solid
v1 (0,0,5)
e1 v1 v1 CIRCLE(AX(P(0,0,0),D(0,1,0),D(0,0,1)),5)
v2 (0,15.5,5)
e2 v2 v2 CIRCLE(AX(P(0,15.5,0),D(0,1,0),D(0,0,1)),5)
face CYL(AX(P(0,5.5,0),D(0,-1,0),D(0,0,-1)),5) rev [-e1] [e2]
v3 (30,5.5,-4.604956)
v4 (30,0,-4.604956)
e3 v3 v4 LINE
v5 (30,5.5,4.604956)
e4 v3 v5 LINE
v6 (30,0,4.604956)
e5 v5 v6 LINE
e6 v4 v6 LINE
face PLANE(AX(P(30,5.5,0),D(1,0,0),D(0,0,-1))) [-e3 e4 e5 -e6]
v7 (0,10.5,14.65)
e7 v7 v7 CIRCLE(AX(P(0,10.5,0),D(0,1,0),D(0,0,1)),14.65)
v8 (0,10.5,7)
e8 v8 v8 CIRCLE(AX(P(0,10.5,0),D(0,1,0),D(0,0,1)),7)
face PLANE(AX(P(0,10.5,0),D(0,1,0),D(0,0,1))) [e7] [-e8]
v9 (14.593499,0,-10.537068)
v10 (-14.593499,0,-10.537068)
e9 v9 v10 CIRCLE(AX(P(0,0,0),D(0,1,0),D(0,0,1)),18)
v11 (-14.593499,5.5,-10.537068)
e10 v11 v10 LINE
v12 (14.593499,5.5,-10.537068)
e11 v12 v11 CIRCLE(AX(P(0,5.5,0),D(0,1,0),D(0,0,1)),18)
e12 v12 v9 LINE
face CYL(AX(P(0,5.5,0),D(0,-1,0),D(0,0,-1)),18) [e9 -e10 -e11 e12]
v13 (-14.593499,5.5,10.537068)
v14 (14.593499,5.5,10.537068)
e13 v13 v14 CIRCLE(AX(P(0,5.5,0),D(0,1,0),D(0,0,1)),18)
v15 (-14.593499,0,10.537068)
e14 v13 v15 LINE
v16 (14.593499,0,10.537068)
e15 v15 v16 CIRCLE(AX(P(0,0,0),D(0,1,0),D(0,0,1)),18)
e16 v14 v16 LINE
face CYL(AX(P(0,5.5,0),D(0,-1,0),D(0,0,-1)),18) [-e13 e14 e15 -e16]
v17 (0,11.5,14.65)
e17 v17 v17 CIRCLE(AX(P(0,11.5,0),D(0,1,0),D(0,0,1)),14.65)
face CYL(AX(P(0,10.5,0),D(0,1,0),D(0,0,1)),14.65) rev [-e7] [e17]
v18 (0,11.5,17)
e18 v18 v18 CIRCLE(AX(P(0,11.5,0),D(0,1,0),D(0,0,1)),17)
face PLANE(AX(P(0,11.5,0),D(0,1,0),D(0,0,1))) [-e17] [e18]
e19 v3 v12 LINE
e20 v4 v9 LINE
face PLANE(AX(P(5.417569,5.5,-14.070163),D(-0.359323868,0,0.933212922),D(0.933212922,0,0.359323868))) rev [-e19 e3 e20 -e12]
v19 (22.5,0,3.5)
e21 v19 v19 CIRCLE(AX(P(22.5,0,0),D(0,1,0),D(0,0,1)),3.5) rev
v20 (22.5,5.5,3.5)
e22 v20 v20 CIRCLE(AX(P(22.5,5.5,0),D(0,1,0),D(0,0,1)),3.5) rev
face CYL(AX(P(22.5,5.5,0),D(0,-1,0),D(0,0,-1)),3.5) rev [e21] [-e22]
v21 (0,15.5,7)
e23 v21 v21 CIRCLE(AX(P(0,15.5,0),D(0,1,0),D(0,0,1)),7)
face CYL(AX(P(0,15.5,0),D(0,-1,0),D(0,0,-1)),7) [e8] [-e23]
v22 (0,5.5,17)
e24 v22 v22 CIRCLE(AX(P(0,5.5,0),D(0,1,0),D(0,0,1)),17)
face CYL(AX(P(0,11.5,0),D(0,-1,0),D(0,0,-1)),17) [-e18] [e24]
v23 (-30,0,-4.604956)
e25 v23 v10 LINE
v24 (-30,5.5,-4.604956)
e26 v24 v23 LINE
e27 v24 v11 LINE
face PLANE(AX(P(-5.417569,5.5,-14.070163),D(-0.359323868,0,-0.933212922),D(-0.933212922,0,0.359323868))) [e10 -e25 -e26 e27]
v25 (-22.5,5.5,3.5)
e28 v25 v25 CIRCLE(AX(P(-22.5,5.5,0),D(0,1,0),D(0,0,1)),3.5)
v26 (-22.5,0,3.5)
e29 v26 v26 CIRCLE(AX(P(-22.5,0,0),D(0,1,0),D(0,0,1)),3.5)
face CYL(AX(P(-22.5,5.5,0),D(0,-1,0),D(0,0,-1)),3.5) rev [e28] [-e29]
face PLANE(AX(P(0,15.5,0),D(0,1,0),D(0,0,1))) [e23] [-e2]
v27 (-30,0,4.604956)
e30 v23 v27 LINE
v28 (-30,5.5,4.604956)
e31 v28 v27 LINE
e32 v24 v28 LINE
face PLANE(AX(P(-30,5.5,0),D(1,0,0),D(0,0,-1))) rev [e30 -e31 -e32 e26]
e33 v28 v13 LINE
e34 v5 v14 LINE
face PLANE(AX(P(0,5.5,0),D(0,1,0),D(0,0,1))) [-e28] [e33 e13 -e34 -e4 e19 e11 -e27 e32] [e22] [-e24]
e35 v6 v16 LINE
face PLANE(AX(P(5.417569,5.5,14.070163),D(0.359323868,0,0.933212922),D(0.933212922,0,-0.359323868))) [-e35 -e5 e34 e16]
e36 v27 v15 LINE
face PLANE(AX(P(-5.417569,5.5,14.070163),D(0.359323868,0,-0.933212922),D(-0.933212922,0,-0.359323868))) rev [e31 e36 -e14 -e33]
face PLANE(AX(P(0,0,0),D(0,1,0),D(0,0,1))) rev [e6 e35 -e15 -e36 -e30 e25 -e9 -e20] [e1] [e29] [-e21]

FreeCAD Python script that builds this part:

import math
import FreeCAD as App
import Part
import Sketcher
from FreeCAD import Vector

doc = App.newDocument("Part")
body = doc.addObject("PartDesign::Body", "Body")

sketch1 = body.newObject("Sketcher::SketchObject", "Sketch")
sketch1.AttachmentSupport = (doc.getObject("XZ_Plane"), [""])
sketch1.MapMode = "FlatFace"
sketch1.addGeometry([
    Part.LineSegment(Vector(-14.6, -10.5, 0), Vector(-30, -4.6, 0)),
    Part.LineSegment(Vector(-30, -4.6, 0), Vector(-30, 4.6, 0)),
    Part.LineSegment(Vector(-30, 4.6, 0), Vector(-14.6, 10.5, 0)),
    Part.ArcOfCircle(Part.Circle(Vector(0, 0, 0), Vector(0, 0, 1), 18), math.radians(36), math.radians(144)),
    Part.LineSegment(Vector(14.6, 10.5, 0), Vector(30, 4.6, 0)),
    Part.LineSegment(Vector(30, 4.6, 0), Vector(30, -4.6, 0)),
    Part.LineSegment(Vector(30, -4.6, 0), Vector(14.6, -10.5, 0)),
    Part.ArcOfCircle(Part.Circle(Vector(0, 0, 0), Vector(0, 0, 1), 18), math.radians(-144), math.radians(-36)),
    Part.Circle(Vector(-22.5, 0, 0), Vector(0, 0, 1), 3.5),
    Part.Circle(Vector(0, 0, 0), Vector(0, 0, 1), 5),
    Part.Circle(Vector(22.5, 0, 0), Vector(0, 0, 1), 3.5),
], False)
sketch1.addConstraint([
    Sketcher.Constraint("Coincident", 0, 2, 1, 1),
    Sketcher.Constraint("Coincident", 1, 2, 2, 1),
    Sketcher.Constraint("Coincident", 2, 2, 3, 2),
    Sketcher.Constraint("Coincident", 3, 1, 4, 1),
    Sketcher.Constraint("Coincident", 4, 2, 5, 1),
    Sketcher.Constraint("Coincident", 5, 2, 6, 1),
    Sketcher.Constraint("Coincident", 6, 2, 7, 2),
    Sketcher.Constraint("Coincident", 7, 1, 0, 1),
    Sketcher.Constraint("Vertical", 1),
    Sketcher.Constraint("Vertical", 5),
    Sketcher.Constraint("Coincident", 3, 3, -1, 1),
    Sketcher.Constraint("Coincident", 7, 3, -1, 1),
    Sketcher.Constraint("Coincident", 9, 3, -1, 1),
    Sketcher.Constraint("Equal", 3, 7),
    Sketcher.Constraint("Equal", 8, 10),
    Sketcher.Constraint("Symmetric", 8, 3, 10, 3, -1, 1),
    Sketcher.Constraint("Symmetric", 0, 2, 4, 2, -1, 1),
    Sketcher.Constraint("PointOnObject", 8, 3, -1),
    Sketcher.Constraint("Parallel", 0, 4),
    Sketcher.Constraint("Parallel", 2, 6),
    Sketcher.Constraint("Horizontal", 2, 2, 3, 1),
    Sketcher.Constraint("Horizontal", 1, 2, 4, 2),
    Sketcher.Constraint("Horizontal", 0, 2, 5, 2),
    Sketcher.Constraint("Diameter", 8, 7.0),
    Sketcher.Constraint("Diameter", 9, 10.0),
    Sketcher.Constraint("Radius", 3, 18.0),
    Sketcher.Constraint("DistanceX", 0, 2, -1, 1, 30.0),
    Sketcher.Constraint("DistanceX", 8, 3, 10, 3, 45.0),
    Sketcher.Constraint("DistanceY", 1, 1, 1, 2, 9.209911),
    Sketcher.Constraint("DistanceX", 2, 2, -1, 1, 14.593499),
])
pad1 = body.newObject("PartDesign::Pad", "Pad")
pad1.Profile = sketch1
pad1.Length = 5.5
pad1.Reversed = True

sketch2 = body.newObject("Sketcher::SketchObject", "Sketch001")
sketch2.AttachmentSupport = (doc.getObject("XZ_Plane"), [""])
sketch2.MapMode = "FlatFace"
sketch2.AttachmentOffset = App.Placement(Vector(0, 0, -5.5), App.Rotation())
sketch2.addGeometry([
    Part.Circle(Vector(0, 0, 0), Vector(0, 0, 1), 17),
    Part.Circle(Vector(0, 0, 0), Vector(0, 0, 1), 5),
], False)
sketch2.addConstraint([
    Sketcher.Constraint("Coincident", 0, 3, -1, 1),
    Sketcher.Constraint("Coincident", 1, 3, -1, 1),
    Sketcher.Constraint("Diameter", 0, 34.0),
    Sketcher.Constraint("Diameter", 1, 10.0),
])
pad2 = body.newObject("PartDesign::Pad", "Pad001")
pad2.Profile = sketch2
pad2.Length = 6
pad2.Reversed = True

sketch3 = body.newObject("Sketcher::SketchObject", "Sketch002")
sketch3.AttachmentSupport = (doc.getObject("XZ_Plane"), [""])
sketch3.MapMode = "FlatFace"
sketch3.AttachmentOffset = App.Placement(Vector(0, 0, -11.5), App.Rotation())
sketch3.addGeometry([
    Part.Circle(Vector(0, 0, 0), Vector(0, 0, 1), 7),
    Part.Circle(Vector(0, 0, 0), Vector(0, 0, 1), 5),
], False)
sketch3.addConstraint([
    Sketcher.Constraint("Coincident", 0, 3, -1, 1),
    Sketcher.Constraint("Coincident", 1, 3, -1, 1),
    Sketcher.Constraint("Diameter", 0, 14.0),
    Sketcher.Constraint("Diameter", 1, 10.0),
])
pad3 = body.newObject("PartDesign::Pad", "Pad002")
pad3.Profile = sketch3
pad3.Length = 4
pad3.Reversed = True

sketch4 = body.newObject("Sketcher::SketchObject", "Sketch003")
sketch4.AttachmentSupport = (doc.getObject("XZ_Plane"), [""])
sketch4.MapMode = "FlatFace"
sketch4.AttachmentOffset = App.Placement(Vector(0, 0, -10.5), App.Rotation())
sketch4.addGeometry([
    Part.Circle(Vector(0, 0, 0), Vector(0, 0, 1), 15),
    Part.Circle(Vector(0, 0, 0), Vector(0, 0, 1), 7),
], False)
sketch4.addConstraint([
    Sketcher.Constraint("Coincident", 0, 3, -1, 1),
    Sketcher.Constraint("Coincident", 1, 3, -1, 1),
    Sketcher.Constraint("Diameter", 1, 14.0),
    Sketcher.Constraint("Diameter", 0, 29.3),
])
pocket1 = body.newObject("PartDesign::Pocket", "Pocket")
pocket1.Profile = sketch4
pocket1.Length = 1

doc.recompute()
